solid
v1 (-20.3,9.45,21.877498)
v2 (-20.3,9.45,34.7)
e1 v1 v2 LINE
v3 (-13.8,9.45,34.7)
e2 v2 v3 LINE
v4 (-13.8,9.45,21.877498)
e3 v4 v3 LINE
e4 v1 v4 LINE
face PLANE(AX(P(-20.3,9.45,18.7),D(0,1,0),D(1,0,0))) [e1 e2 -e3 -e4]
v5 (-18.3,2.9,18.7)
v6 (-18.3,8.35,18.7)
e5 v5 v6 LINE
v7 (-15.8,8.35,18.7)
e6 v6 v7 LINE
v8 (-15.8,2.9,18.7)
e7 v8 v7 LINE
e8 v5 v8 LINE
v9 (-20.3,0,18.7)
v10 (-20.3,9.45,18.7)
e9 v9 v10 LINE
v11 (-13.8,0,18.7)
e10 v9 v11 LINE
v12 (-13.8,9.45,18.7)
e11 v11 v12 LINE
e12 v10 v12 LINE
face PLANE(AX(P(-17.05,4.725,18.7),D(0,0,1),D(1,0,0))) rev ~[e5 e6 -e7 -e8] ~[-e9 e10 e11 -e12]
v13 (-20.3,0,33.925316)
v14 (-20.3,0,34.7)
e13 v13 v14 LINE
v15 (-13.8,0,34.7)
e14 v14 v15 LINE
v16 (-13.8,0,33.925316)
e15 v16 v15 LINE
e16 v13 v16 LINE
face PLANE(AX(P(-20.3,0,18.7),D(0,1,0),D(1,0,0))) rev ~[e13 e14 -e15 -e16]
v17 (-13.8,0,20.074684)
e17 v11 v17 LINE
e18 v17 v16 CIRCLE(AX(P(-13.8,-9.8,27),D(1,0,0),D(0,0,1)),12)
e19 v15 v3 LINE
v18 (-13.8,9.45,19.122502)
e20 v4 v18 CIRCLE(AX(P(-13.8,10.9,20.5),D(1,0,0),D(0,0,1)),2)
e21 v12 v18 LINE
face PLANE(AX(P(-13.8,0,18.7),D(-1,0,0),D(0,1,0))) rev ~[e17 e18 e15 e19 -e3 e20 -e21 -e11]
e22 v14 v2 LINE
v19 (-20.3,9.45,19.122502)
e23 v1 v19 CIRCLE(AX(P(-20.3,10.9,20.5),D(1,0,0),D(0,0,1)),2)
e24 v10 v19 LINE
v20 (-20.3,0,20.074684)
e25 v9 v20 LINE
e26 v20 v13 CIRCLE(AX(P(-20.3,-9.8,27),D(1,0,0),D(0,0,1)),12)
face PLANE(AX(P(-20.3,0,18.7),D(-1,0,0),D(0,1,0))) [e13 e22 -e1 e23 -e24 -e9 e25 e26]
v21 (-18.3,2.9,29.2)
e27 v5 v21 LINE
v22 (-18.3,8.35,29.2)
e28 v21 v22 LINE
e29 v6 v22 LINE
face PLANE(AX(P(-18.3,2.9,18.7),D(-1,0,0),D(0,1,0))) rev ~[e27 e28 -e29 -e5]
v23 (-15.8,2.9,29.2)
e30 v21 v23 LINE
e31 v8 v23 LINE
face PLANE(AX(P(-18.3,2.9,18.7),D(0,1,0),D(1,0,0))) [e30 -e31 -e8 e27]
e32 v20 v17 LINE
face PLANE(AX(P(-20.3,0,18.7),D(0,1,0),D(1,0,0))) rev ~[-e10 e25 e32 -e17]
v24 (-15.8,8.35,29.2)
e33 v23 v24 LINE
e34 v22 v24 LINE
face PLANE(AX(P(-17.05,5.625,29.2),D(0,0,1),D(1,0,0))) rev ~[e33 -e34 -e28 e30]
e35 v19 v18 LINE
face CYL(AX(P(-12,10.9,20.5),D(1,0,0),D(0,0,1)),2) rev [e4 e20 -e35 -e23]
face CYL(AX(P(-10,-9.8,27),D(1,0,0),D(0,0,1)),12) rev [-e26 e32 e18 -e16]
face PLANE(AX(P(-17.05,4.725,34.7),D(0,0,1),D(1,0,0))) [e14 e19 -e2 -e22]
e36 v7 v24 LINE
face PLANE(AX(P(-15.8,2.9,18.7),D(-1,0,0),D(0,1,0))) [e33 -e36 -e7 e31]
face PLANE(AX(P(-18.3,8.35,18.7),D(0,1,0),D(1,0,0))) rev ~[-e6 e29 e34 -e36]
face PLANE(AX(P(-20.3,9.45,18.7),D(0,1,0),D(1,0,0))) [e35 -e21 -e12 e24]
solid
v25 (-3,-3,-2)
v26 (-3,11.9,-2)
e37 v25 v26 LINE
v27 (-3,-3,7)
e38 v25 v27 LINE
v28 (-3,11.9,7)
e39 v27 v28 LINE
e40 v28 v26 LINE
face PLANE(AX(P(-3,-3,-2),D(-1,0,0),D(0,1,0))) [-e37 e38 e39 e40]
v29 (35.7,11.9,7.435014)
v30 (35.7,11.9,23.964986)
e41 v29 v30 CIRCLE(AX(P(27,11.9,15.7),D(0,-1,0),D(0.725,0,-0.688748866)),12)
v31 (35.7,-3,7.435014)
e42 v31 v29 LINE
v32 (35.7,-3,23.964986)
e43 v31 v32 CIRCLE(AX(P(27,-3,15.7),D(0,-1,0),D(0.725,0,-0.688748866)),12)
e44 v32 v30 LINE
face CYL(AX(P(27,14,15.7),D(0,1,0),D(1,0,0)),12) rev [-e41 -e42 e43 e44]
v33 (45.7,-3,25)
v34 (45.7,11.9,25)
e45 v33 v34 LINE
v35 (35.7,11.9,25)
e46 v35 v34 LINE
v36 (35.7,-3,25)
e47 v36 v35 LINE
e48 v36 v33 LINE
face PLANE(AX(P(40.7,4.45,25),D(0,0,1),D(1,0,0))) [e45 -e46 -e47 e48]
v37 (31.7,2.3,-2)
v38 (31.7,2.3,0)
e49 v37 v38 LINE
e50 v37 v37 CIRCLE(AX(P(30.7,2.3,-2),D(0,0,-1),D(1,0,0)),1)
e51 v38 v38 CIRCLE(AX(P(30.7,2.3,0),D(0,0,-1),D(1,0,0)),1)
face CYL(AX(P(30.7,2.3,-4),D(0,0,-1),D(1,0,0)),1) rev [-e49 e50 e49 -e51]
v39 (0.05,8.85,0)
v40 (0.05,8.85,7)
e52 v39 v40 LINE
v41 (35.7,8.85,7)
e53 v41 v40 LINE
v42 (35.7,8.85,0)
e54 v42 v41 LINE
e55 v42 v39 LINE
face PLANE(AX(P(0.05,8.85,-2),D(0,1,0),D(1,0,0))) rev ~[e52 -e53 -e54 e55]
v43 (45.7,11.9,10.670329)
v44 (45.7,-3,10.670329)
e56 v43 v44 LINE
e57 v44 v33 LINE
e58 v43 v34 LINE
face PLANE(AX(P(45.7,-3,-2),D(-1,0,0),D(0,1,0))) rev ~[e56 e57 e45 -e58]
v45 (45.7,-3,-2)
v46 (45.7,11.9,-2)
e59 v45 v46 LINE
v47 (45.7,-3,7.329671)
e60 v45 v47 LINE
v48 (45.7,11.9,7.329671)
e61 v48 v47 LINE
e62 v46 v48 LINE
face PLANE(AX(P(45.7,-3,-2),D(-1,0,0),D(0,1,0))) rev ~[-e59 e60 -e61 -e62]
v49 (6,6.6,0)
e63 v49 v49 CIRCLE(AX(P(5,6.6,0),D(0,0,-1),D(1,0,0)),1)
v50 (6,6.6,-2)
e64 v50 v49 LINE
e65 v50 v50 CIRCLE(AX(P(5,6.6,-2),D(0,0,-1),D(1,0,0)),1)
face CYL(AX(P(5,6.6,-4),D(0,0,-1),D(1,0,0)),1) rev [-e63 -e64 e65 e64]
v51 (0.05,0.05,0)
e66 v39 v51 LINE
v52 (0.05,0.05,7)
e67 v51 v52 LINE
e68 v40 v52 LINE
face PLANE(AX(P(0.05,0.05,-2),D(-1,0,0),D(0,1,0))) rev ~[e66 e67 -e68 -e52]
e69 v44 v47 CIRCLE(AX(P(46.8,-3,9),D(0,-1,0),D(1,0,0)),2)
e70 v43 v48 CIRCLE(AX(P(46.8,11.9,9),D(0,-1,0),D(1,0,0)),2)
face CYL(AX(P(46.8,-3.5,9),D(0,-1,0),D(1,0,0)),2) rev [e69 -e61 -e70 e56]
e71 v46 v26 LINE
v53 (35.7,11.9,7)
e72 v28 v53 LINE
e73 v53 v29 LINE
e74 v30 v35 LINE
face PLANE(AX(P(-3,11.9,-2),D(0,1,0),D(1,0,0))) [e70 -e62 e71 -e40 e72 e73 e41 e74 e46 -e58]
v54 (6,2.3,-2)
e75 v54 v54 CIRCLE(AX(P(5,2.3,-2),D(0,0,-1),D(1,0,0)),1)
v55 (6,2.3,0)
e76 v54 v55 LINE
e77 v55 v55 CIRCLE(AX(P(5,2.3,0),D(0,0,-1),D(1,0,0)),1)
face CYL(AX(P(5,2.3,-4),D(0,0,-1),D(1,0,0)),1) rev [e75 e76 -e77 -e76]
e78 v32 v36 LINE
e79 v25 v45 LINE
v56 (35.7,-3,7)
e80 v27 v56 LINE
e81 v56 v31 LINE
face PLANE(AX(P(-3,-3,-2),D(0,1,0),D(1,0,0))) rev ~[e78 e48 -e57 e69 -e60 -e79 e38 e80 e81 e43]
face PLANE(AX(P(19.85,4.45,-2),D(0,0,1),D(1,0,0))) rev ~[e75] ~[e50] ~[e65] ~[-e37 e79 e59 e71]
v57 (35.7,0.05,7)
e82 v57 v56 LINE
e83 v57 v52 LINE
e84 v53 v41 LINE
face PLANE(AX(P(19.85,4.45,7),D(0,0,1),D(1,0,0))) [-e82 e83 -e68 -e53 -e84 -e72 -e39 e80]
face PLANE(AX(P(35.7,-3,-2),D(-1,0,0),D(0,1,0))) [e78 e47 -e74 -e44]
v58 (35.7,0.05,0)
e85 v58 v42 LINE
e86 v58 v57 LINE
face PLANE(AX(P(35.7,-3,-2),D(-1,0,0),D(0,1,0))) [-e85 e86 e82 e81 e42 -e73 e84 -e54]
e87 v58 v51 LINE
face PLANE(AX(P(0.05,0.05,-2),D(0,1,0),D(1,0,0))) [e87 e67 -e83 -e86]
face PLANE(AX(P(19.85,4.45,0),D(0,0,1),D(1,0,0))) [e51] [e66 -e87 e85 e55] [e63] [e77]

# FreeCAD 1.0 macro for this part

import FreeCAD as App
import Part
import Sketcher
from FreeCAD import Vector
Q = App.Units.Quantity


def add_polygon(sketch, points):
    """Adds a closed chain of lines whose ends are joined by coincident constraints."""
    first, n = sketch.GeometryCount, len(points)
    for a, b in zip(points, points[1:] + points[:1]):
        sketch.addGeometry(Part.LineSegment(App.Vector(*a, 0), App.Vector(*b, 0)), False)
    for i in range(n):
        sketch.addConstraint(Sketcher.Constraint("Coincident", first + i, 2, first + (i + 1) % n, 1))

doc = App.newDocument("Part")
params = doc.addObject("Spreadsheet::Sheet", "Params")
for row, (alias, value) in enumerate([
    ("sketch1_diameter", "2 mm"),
    ("pad1_length", "10 mm"),
    ("sketch2_diameter", "2 mm"),
    ("pad2_length", "10 mm"),
    ("sketch3_diameter", "2 mm"),
    ("pad3_length", "10 mm"),
    ("sketch4_diameter", "4 mm"),
    ("pad4_length", "16 mm"),
    ("sketch5_diameter", "24 mm"),
    ("pad5_length", "20 mm"),
    ("sketch6_width", "10 mm"),
    ("sketch6_height", "14.9 mm"),
    ("pad6_length", "27 mm"),
    ("sketch7_width", "45.7 mm"),
    ("sketch7_height", "14.9 mm"),
    ("pad7_length", "2 mm"),
    ("sketch8_width", "36.6 mm"),
    ("sketch8_height", "8.8 mm"),
    ("pad8_length", "10 mm"),
    ("sketch9_width", "45.7 mm"),
    ("sketch9_height", "14.9 mm"),
    ("pad9_length", "7 mm"),
    ("sketch10_diameter", "4 mm"),
    ("pad10_length", "10 mm"),
    ("sketch11_diameter", "24 mm"),
    ("pad11_length", "16 mm"),
    ("sketch12_width", "2.5 mm"),
    ("sketch12_height", "5.45 mm"),
    ("pad12_length", "10.5 mm"),
    ("sketch13_width", "6.5 mm"),
    ("sketch13_height", "9.45 mm"),
    ("pad13_length", "16 mm"),
], start=1):
    params.set(f"A{row}", alias)
    params.set(f"B{row}", "=" + value)
    params.setAlias(f"B{row}", alias)

body = doc.addObject("PartDesign::Body", "Body")

sketch1 = body.newObject("Sketcher::SketchObject", "Sketch")
sketch1.AttachmentSupport = (doc.getObject("XY_Plane"), [""])
sketch1.MapMode = "FlatFace"
sketch1.AttachmentOffset = App.Placement(Vector(0, 0, -4), App.Rotation())
sketch1.addGeometry(Part.Circle(Vector(5, 6.6, 0), Vector(0, 0, 1), 1), False)
sketch1.addConstraint(Sketcher.Constraint("Diameter", 0, Q("2 mm")))
sketch1.addConstraint(Sketcher.Constraint("DistanceX", -1, 1, 0, 3, Q("5 mm")))
sketch1.addConstraint(Sketcher.Constraint("DistanceY", -1, 1, 0, 3, Q("6.6 mm")))
sketch1.setExpression("Constraints[0]", "Params.sketch1_diameter")
pad1 = body.newObject("PartDesign::Pad", "Pad")
pad1.Profile = sketch1
pad1.setExpression("Length", "Params.pad1_length")
body2 = doc.addObject("PartDesign::Body", "Body001")

sketch2 = body2.newObject("Sketcher::SketchObject", "Sketch001")
sketch2.AttachmentSupport = (doc.getObject("XY_Plane001"), [""])
sketch2.MapMode = "FlatFace"
sketch2.AttachmentOffset = App.Placement(Vector(0, 0, -4), App.Rotation())
sketch2.addGeometry(Part.Circle(Vector(30.7, 2.3, 0), Vector(0, 0, 1), 1), False)
sketch2.addConstraint(Sketcher.Constraint("Diameter", 0, Q("2 mm")))
sketch2.addConstraint(Sketcher.Constraint("DistanceX", -1, 1, 0, 3, Q("30.7 mm")))
sketch2.addConstraint(Sketcher.Constraint("DistanceY", -1, 1, 0, 3, Q("2.3 mm")))
sketch2.setExpression("Constraints[0]", "Params.sketch2_diameter")
pad2 = body2.newObject("PartDesign::Pad", "Pad001")
pad2.Profile = sketch2
pad2.setExpression("Length", "Params.pad2_length")
body3 = doc.addObject("PartDesign::Body", "Body002")
body3.AllowCompound = True

sketch3 = body3.newObject("Sketcher::SketchObject", "Sketch002")
sketch3.AttachmentSupport = (doc.getObject("XY_Plane002"), [""])
sketch3.MapMode = "FlatFace"
sketch3.AttachmentOffset = App.Placement(Vector(0, 0, -4), App.Rotation())
sketch3.addGeometry(Part.Circle(Vector(5, 2.3, 0), Vector(0, 0, 1), 1), False)
sketch3.addConstraint(Sketcher.Constraint("Diameter", 0, Q("2 mm")))
sketch3.addConstraint(Sketcher.Constraint("DistanceX", -1, 1, 0, 3, Q("5 mm")))
sketch3.addConstraint(Sketcher.Constraint("DistanceY", -1, 1, 0, 3, Q("2.3 mm")))
sketch3.setExpression("Constraints[0]", "Params.sketch3_diameter")
pad3 = body3.newObject("PartDesign::Pad", "Pad002")
pad3.Profile = sketch3
pad3.setExpression("Length", "Params.pad3_length")
doc.recompute()

boolean = body3.newObject("PartDesign::Boolean", "Boolean")
boolean.Type = "Fuse"
boolean.addObjects([body])
doc.recompute()

boolean2 = body3.newObject("PartDesign::Boolean", "Boolean001")
boolean2.Type = "Fuse"
boolean2.addObjects([body2])
body4 = doc.addObject("PartDesign::Body", "Body003")

sketch4 = body4.newObject("Sketcher::SketchObject", "Sketch003")
sketch4.AttachmentSupport = (doc.getObject("XZ_Plane003"), [""])
sketch4.MapMode = "FlatFace"
sketch4.AttachmentOffset = App.Placement(Vector(0, 0, 3.5), App.Rotation())
sketch4.addGeometry(Part.Circle(Vector(46.8, 9, 0), Vector(0, 0, 1), 2), False)
sketch4.addConstraint(Sketcher.Constraint("Diameter", 0, Q("4 mm")))
sketch4.addConstraint(Sketcher.Constraint("DistanceY", -1, 1, 0, 3, Q("9 mm")))
sketch4.addConstraint(Sketcher.Constraint("DistanceX", -1, 1, 0, 3, Q("46.8 mm")))
sketch4.setExpression("Constraints[0]", "Params.sketch4_diameter")
pad4 = body4.newObject("PartDesign::Pad", "Pad003")
pad4.Profile = sketch4
pad4.setExpression("Length", "Params.pad4_length")
pad4.Reversed = True
body5 = doc.addObject("PartDesign::Body", "Body004")

sketch5 = body5.newObject("Sketcher::SketchObject", "Sketch004")
sketch5.AttachmentSupport = (doc.getObject("XZ_Plane004"), [""])
sketch5.MapMode = "FlatFace"
sketch5.AttachmentOffset = App.Placement(Vector(0, 0, -14), App.Rotation())
sketch5.addGeometry(Part.Circle(Vector(27, 15.7, 0), Vector(0, 0, 1), 12), False)
sketch5.addConstraint(Sketcher.Constraint("Diameter", 0, Q("24 mm")))
sketch5.addConstraint(Sketcher.Constraint("DistanceX", -1, 1, 0, 3, Q("27 mm")))
sketch5.addConstraint(Sketcher.Constraint("DistanceY", -1, 1, 0, 3, Q("15.7 mm")))
sketch5.setExpression("Constraints[0]", "Params.sketch5_diameter")
pad5 = body5.newObject("PartDesign::Pad", "Pad004")
pad5.Profile = sketch5
pad5.setExpression("Length", "Params.pad5_length")
body6 = doc.addObject("PartDesign::Body", "Body005")

sketch6 = body6.newObject("Sketcher::SketchObject", "Sketch005")
sketch6.AttachmentSupport = (doc.getObject("XY_Plane005"), [""])
sketch6.MapMode = "FlatFace"
sketch6.AttachmentOffset = App.Placement(Vector(0, 0, -2), App.Rotation())
add_polygon(sketch6, [(35.7, 11.9), (35.7, -3), (45.7, -3), (45.7, 11.9)])
sketch6.addConstraint(Sketcher.Constraint("Vertical", 0))
sketch6.addConstraint(Sketcher.Constraint("Horizontal", 1))
sketch6.addConstraint(Sketcher.Constraint("Vertical", 2))
sketch6.addConstraint(Sketcher.Constraint("Horizontal", 3))
sketch6.addConstraint(Sketcher.Constraint("DistanceX", 1, 1, 1, 2, Q("10 mm")))
sketch6.addConstraint(Sketcher.Constraint("DistanceY", 0, 2, 0, 1, Q("14.9 mm")))
sketch6.addConstraint(Sketcher.Constraint("DistanceY", 0, 2, -1, 1, Q("3 mm")))
sketch6.addConstraint(Sketcher.Constraint("DistanceX", -1, 1, 0, 2, Q("35.7 mm")))
sketch6.setExpression("Constraints[8]", "Params.sketch6_width")
sketch6.setExpression("Constraints[9]", "Params.sketch6_height")
pad6 = body6.newObject("PartDesign::Pad", "Pad005")
pad6.Profile = sketch6
pad6.setExpression("Length", "Params.pad6_length")
doc.recompute()

boolean3 = body6.newObject("PartDesign::Boolean", "Boolean002")
boolean3.Type = "Cut"
boolean3.addObjects([body5])
doc.recompute()

boolean4 = body6.newObject("PartDesign::Boolean", "Boolean003")
boolean4.Type = "Cut"
boolean4.addObjects([body4])
body7 = doc.addObject("PartDesign::Body", "Body006")

sketch7 = body7.newObject("Sketcher::SketchObject", "Sketch006")
sketch7.AttachmentSupport = (doc.getObject("XY_Plane006"), [""])
sketch7.MapMode = "FlatFace"
sketch7.AttachmentOffset = App.Placement(Vector(0, 0, -2), App.Rotation())
add_polygon(sketch7, [(-3, 11.9), (-3, -3), (42.7, -3), (42.7, 11.9)])
sketch7.addConstraint(Sketcher.Constraint("Vertical", 0))
sketch7.addConstraint(Sketcher.Constraint("Horizontal", 1))
sketch7.addConstraint(Sketcher.Constraint("Vertical", 2))
sketch7.addConstraint(Sketcher.Constraint("Horizontal", 3))
sketch7.addConstraint(Sketcher.Constraint("DistanceX", 1, 1, 1, 2, Q("45.7 mm")))
sketch7.addConstraint(Sketcher.Constraint("DistanceY", 0, 2, 0, 1, Q("14.9 mm")))
sketch7.addConstraint(Sketcher.Constraint("DistanceX", 0, 2, -1, 1, Q("3 mm")))
sketch7.addConstraint(Sketcher.Constraint("DistanceY", 0, 2, -1, 1, Q("3 mm")))
sketch7.setExpression("Constraints[8]", "Params.sketch7_width")
sketch7.setExpression("Constraints[9]", "Params.sketch7_height")
pad7 = body7.newObject("PartDesign::Pad", "Pad006")
pad7.Profile = sketch7
pad7.setExpression("Length", "Params.pad7_length")
body8 = doc.addObject("PartDesign::Body", "Body007")

sketch8 = body8.newObject("Sketcher::SketchObject", "Sketch007")
sketch8.AttachmentSupport = (doc.getObject("XY_Plane007"), [""])
sketch8.MapMode = "FlatFace"
sketch8.AttachmentOffset = App.Placement(Vector(0, 0, -2), App.Rotation())
add_polygon(sketch8, [(0.05, 8.85), (0.05, 0.05), (36.65, 0.05), (36.65, 8.85)])
sketch8.addConstraint(Sketcher.Constraint("Vertical", 0))
sketch8.addConstraint(Sketcher.Constraint("Horizontal", 1))
sketch8.addConstraint(Sketcher.Constraint("Vertical", 2))
sketch8.addConstraint(Sketcher.Constraint("Horizontal", 3))
sketch8.addConstraint(Sketcher.Constraint("DistanceX", 1, 1, 1, 2, Q("36.6 mm")))
sketch8.addConstraint(Sketcher.Constraint("DistanceY", 0, 2, 0, 1, Q("8.8 mm")))
sketch8.addConstraint(Sketcher.Constraint("DistanceX", -1, 1, 0, 2, Q("0.05 mm")))
sketch8.addConstraint(Sketcher.Constraint("DistanceY", -1, 1, 0, 2, Q("0.05 mm")))
sketch8.setExpression("Constraints[8]", "Params.sketch8_width")
sketch8.setExpression("Constraints[9]", "Params.sketch8_height")
pad8 = body8.newObject("PartDesign::Pad", "Pad007")
pad8.Profile = sketch8
pad8.setExpression("Length", "Params.pad8_length")
body9 = doc.addObject("PartDesign::Body", "Body008")

sketch9 = body9.newObject("Sketcher::SketchObject", "Sketch008")
sketch9.AttachmentSupport = (doc.getObject("XY_Plane008"), [""])
sketch9.MapMode = "FlatFace"
add_polygon(sketch9, [(-3, 11.9), (-3, -3), (42.7, -3), (42.7, 11.9)])
sketch9.addConstraint(Sketcher.Constraint("Vertical", 0))
sketch9.addConstraint(Sketcher.Constraint("Horizontal", 1))
sketch9.addConstraint(Sketcher.Constraint("Vertical", 2))
sketch9.addConstraint(Sketcher.Constraint("Horizontal", 3))
sketch9.addConstraint(Sketcher.Constraint("DistanceX", 1, 1, 1, 2, Q("45.7 mm")))
sketch9.addConstraint(Sketcher.Constraint("DistanceY", 0, 2, 0, 1, Q("14.9 mm")))
sketch9.addConstraint(Sketcher.Constraint("DistanceX", 0, 2, -1, 1, Q("3 mm")))
sketch9.addConstraint(Sketcher.Constraint("DistanceY", 0, 2, -1, 1, Q("3 mm")))
sketch9.setExpression("Constraints[8]", "Params.sketch9_width")
sketch9.setExpression("Constraints[9]", "Params.sketch9_height")
pad9 = body9.newObject("PartDesign::Pad", "Pad008")
pad9.Profile = sketch9
pad9.setExpression("Length", "Params.pad9_length")
doc.recompute()

boolean5 = body9.newObject("PartDesign::Boolean", "Boolean004")
boolean5.Type = "Cut"
boolean5.addObjects([body8])
doc.recompute()

boolean6 = body9.newObject("PartDesign::Boolean", "Boolean005")
boolean6.Type = "Fuse"
boolean6.addObjects([body6])
doc.recompute()

boolean7 = body9.newObject("PartDesign::Boolean", "Boolean006")
boolean7.Type = "Fuse"
boolean7.addObjects([body7])
doc.recompute()

boolean8 = body9.newObject("PartDesign::Boolean", "Boolean007")
boolean8.Type = "Cut"
boolean8.addObjects([body3])
body10 = doc.addObject("PartDesign::Body", "Body009")

sketch10 = body10.newObject("Sketcher::SketchObject", "Sketch009")
sketch10.AttachmentSupport = (doc.getObject("YZ_Plane009"), [""])
sketch10.MapMode = "FlatFace"
sketch10.AttachmentOffset = App.Placement(Vector(0, 0, -12), App.Rotation())
sketch10.addGeometry(Part.Circle(Vector(10.9, 20.5, 0), Vector(0, 0, 1), 2), False)
sketch10.addConstraint(Sketcher.Constraint("Diameter", 0, Q("4 mm")))
sketch10.addConstraint(Sketcher.Constraint("DistanceX", -1, 1, 0, 3, Q("10.9 mm")))
sketch10.addConstraint(Sketcher.Constraint("DistanceY", -1, 1, 0, 3, Q("20.5 mm")))
sketch10.setExpression("Constraints[0]", "Params.sketch10_diameter")
pad10 = body10.newObject("PartDesign::Pad", "Pad009")
pad10.Profile = sketch10
pad10.setExpression("Length", "Params.pad10_length")
pad10.Reversed = True
body11 = doc.addObject("PartDesign::Body", "Body010")

sketch11 = body11.newObject("Sketcher::SketchObject", "Sketch010")
sketch11.AttachmentSupport = (doc.getObject("YZ_Plane010"), [""])
sketch11.MapMode = "FlatFace"
sketch11.AttachmentOffset = App.Placement(Vector(0, 0, -10), App.Rotation())
sketch11.addGeometry(Part.Circle(Vector(-9.8, 27, 0), Vector(0, 0, 1), 12), False)
sketch11.addConstraint(Sketcher.Constraint("Diameter", 0, Q("24 mm")))
sketch11.addConstraint(Sketcher.Constraint("DistanceY", -1, 1, 0, 3, Q("27 mm")))
sketch11.addConstraint(Sketcher.Constraint("DistanceX", 0, 3, -1, 1, Q("9.8 mm")))
sketch11.setExpression("Constraints[0]", "Params.sketch11_diameter")
pad11 = body11.newObject("PartDesign::Pad", "Pad010")
pad11.Profile = sketch11
pad11.setExpression("Length", "Params.pad11_length")
pad11.Reversed = True
body12 = doc.addObject("PartDesign::Body", "Body011")

sketch12 = body12.newObject("Sketcher::SketchObject", "Sketch011")
sketch12.AttachmentSupport = (doc.getObject("XY_Plane011"), [""])
sketch12.MapMode = "FlatFace"
sketch12.AttachmentOffset = App.Placement(Vector(0, 0, 18.7), App.Rotation())
add_polygon(sketch12, [(-18.3, 8.35), (-18.3, 2.9), (-15.8, 2.9), (-15.8, 8.35)])
sketch12.addConstraint(Sketcher.Constraint("Vertical", 0))
sketch12.addConstraint(Sketcher.Constraint("Horizontal", 1))
sketch12.addConstraint(Sketcher.Constraint("Vertical", 2))
sketch12.addConstraint(Sketcher.Constraint("Horizontal", 3))
sketch12.addConstraint(Sketcher.Constraint("DistanceX", 1, 1, 1, 2, Q("2.5 mm")))
sketch12.addConstraint(Sketcher.Constraint("DistanceY", 0, 2, 0, 1, Q("5.45 mm")))
sketch12.addConstraint(Sketcher.Constraint("DistanceX", 0, 2, -1, 1, Q("18.3 mm")))
sketch12.addConstraint(Sketcher.Constraint("DistanceY", -1, 1, 0, 2, Q("2.9 mm")))
sketch12.setExpression("Constraints[8]", "Params.sketch12_width")
sketch12.setExpression("Constraints[9]", "Params.sketch12_height")
pad12 = body12.newObject("PartDesign::Pad", "Pad011")
pad12.Profile = sketch12
pad12.setExpression("Length", "Params.pad12_length")
body13 = doc.addObject("PartDesign::Body", "Body012")

sketch13 = body13.newObject("Sketcher::SketchObject", "Sketch012")
sketch13.AttachmentSupport = (doc.getObject("XY_Plane012"), [""])
sketch13.MapMode = "FlatFace"
sketch13.AttachmentOffset = App.Placement(Vector(0, 0, 18.7), App.Rotation())
add_polygon(sketch13, [(-20.3, 9.45), (-20.3, 0), (-13.8, 0), (-13.8, 9.45)])
sketch13.addConstraint(Sketcher.Constraint("Vertical", 0))
sketch13.addConstraint(Sketcher.Constraint("Horizontal", 1))
sketch13.addConstraint(Sketcher.Constraint("Vertical", 2))
sketch13.addConstraint(Sketcher.Constraint("Horizontal", 3))
sketch13.addConstraint(Sketcher.Constraint("PointOnObject", 0, 2, -1))
sketch13.addConstraint(Sketcher.Constraint("DistanceX", 1, 1, 1, 2, Q("6.5 mm")))
sketch13.addConstraint(Sketcher.Constraint("DistanceY", 0, 2, 0, 1, Q("9.45 mm")))
sketch13.addConstraint(Sketcher.Constraint("DistanceX", 0, 2, -1, 1, Q("20.3 mm")))
sketch13.setExpression("Constraints[9]", "Params.sketch13_width")
sketch13.setExpression("Constraints[10]", "Params.sketch13_height")
pad13 = body13.newObject("PartDesign::Pad", "Pad012")
pad13.Profile = sketch13
pad13.setExpression("Length", "Params.pad13_length")
doc.recompute()

boolean9 = body13.newObject("PartDesign::Boolean", "Boolean008")
boolean9.Type = "Cut"
boolean9.addObjects([body12])
doc.recompute()

boolean10 = body13.newObject("PartDesign::Boolean", "Boolean009")
boolean10.Type = "Cut"
boolean10.addObjects([body11])
doc.recompute()

boolean11 = body13.newObject("PartDesign::Boolean", "Boolean010")
boolean11.Type = "Cut"
boolean11.addObjects([body10])

doc.recompute()
